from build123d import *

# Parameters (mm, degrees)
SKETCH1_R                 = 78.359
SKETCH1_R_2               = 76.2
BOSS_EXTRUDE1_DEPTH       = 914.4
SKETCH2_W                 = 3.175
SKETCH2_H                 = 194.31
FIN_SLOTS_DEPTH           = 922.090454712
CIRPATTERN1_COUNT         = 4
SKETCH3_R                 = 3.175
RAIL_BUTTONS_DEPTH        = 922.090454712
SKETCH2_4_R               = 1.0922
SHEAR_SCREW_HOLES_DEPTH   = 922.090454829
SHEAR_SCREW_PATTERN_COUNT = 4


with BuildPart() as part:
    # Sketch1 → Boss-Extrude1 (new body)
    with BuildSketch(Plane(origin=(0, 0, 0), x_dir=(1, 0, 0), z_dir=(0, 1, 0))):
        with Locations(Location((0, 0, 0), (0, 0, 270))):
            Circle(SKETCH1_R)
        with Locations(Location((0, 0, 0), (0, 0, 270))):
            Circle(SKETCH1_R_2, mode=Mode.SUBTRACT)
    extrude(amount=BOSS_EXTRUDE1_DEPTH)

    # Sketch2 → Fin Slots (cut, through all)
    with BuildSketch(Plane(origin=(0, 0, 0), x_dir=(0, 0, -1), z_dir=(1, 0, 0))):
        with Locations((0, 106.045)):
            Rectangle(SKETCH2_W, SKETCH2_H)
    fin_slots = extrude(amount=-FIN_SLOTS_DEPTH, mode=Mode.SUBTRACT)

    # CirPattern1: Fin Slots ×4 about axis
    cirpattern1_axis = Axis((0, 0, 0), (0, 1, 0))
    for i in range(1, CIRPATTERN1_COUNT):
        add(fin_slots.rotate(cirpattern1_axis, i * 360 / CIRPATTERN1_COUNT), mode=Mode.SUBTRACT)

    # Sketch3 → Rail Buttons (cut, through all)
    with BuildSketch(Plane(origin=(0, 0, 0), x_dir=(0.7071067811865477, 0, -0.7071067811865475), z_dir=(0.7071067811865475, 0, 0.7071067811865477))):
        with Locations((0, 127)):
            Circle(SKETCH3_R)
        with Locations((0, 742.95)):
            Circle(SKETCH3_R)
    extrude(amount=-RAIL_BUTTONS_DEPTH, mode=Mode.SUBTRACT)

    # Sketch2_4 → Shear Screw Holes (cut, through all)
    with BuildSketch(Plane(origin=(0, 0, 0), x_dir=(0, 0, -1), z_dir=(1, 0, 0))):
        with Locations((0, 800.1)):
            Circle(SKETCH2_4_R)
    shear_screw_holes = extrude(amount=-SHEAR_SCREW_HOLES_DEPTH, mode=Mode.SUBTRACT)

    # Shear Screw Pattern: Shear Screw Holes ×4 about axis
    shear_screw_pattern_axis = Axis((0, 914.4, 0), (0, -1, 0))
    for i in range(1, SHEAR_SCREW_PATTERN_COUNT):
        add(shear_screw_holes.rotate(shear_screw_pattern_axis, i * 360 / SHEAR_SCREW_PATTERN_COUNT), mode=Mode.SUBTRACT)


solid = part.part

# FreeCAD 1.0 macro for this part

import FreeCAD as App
import Part
import Sketcher
Q = App.Units.Quantity


def add_polygon(sketch, points):
    """Adds a closed chain of lines whose ends are joined by coincident constraints."""
    first, n = sketch.GeometryCount, len(points)
    for a, b in zip(points, points[1:] + points[:1]):
        sketch.addGeometry(Part.LineSegment(App.Vector(*a, 0), App.Vector(*b, 0)), False)
    for i in range(n):
        sketch.addConstraint(Sketcher.Constraint("Coincident", first + i, 2, first + (i + 1) % n, 1))

doc = App.newDocument("Part")
body = doc.addObject("PartDesign::Body", "Body")

# Sketch on XZ plane
sketch1 = body.newObject("Sketcher::SketchObject", "Sketch")
sketch1.AttachmentSupport = (doc.getObject("XZ_Plane"), [""])
sketch1.MapMode = "FlatFace"
sketch1.addGeometry([
    Part.Circle(App.Vector(0, 0, 0), App.Vector(0, 0, 1), 78.359),
    Part.Circle(App.Vector(0, 0, 0), App.Vector(0, 0, 1), 76.2),
], False)
sketch1.addConstraint([
    Sketcher.Constraint("Coincident", 0, 3, -1, 1),
    Sketcher.Constraint("Coincident", 1, 3, -1, 1),
    Sketcher.Constraint("Diameter", 1, Q("6 in")),
    Sketcher.Constraint("Diameter", 0, Q("6.17 in")),
])
pad1 = body.newObject("PartDesign::Pad", "Pad")
pad1.Profile = sketch1
pad1.Length = Q("36 in")
pad1.Reversed = True

# Sketch on YZ plane
sketch2 = body.newObject("Sketcher::SketchObject", "Sketch001")
sketch2.AttachmentSupport = (doc.getObject("YZ_Plane"), [""])
sketch2.MapMode = "FlatFace"
add_polygon(sketch2, [(203.2, 1.5875), (8.89, 1.5875), (8.89, -1.5875), (203.2, -1.5875)])  # lines 0-3
sketch2.addConstraint([
    Sketcher.Constraint("Horizontal", 0),
    Sketcher.Constraint("Vertical", 1),
    Sketcher.Constraint("Horizontal", 2),
    Sketcher.Constraint("Vertical", 3),
    Sketcher.Constraint("DistanceX", -1, 1, 2, 2, Q("8 in")),
    Sketcher.Constraint("DistanceX", 0, 2, 0, 1, Q("7.65 in")),
    Sketcher.Constraint("DistanceY", 1, 2, 1, 1, Q("0.125 in")),
    Sketcher.Constraint("DistanceY", -1, 1, 0, 2, Q("0.0625 in")),
])
pocket1 = body.newObject("PartDesign::Pocket", "Pocket")
pocket1.Profile = sketch2
pocket1.Type = "ThroughAll"
doc.recompute()

polarpattern = body.newObject("PartDesign::PolarPattern", "PolarPattern")
polarpattern.Originals = [pocket1]
polarpattern.Axis = (doc.getObject("Y_Axis"), [""])
polarpattern.Angle = 360
polarpattern.Occurrences = 4
body.Tip = polarpattern

# Sketch on an angled plane
sketch3 = body.newObject("Sketcher::SketchObject", "Sketch002")
sketch3.Placement = App.Placement(App.Vector(0, 0, 0), App.Rotation(App.Vector(0.707106781, 0, -0.707106781), App.Vector(0, 0.999999999, 0), App.Vector(0.707106781, 0, 0.707106781), "ZXY"))
sketch3.addGeometry([
    Part.Circle(App.Vector(0, 127, 0), App.Vector(0, 0, 1), 3.175),
    Part.Circle(App.Vector(0, 742.949999, 0), App.Vector(0, 0, 1), 3.175),
], False)
sketch3.addConstraint([
    Sketcher.Constraint("Equal", 0, 1),
    Sketcher.Constraint("PointOnObject", 0, 3, -2),
    Sketcher.Constraint("PointOnObject", 1, 3, -2),
    Sketcher.Constraint("Diameter", 0, Q("0.25 in")),
    Sketcher.Constraint("DistanceY", -1, 1, 0, 3, Q("5 in")),
    Sketcher.Constraint("DistanceY", -1, 1, 1, 3, Q("29.25 in")),
])
pocket2 = body.newObject("PartDesign::Pocket", "Pocket001")
pocket2.Profile = sketch3
pocket2.Type = "ThroughAll"

# Sketch on YZ plane
sketch4 = body.newObject("Sketcher::SketchObject", "Sketch003")
sketch4.AttachmentSupport = (doc.getObject("YZ_Plane"), [""])
sketch4.MapMode = "FlatFace"
sketch4.addGeometry(Part.Circle(App.Vector(800.1, 0, 0), App.Vector(0, 0, 1), 1.0922), False)
sketch4.addConstraint([
    Sketcher.Constraint("PointOnObject", 0, 3, -1),
    Sketcher.Constraint("Diameter", 0, Q("0.086 in")),
    Sketcher.Constraint("DistanceX", -1, 1, 0, 3, Q("31.5 in")),
])
pocket3 = body.newObject("PartDesign::Pocket", "Pocket002")
pocket3.Profile = sketch4
pocket3.Type = "ThroughAll"
doc.recompute()

polarpattern2 = body.newObject("PartDesign::PolarPattern", "PolarPattern001")
polarpattern2.Originals = [pocket3]
polarpattern2.Axis = (doc.getObject("Y_Axis"), [""])
polarpattern2.Angle = 360
polarpattern2.Occurrences = 4
body.Tip = polarpattern2

doc.recompute()
